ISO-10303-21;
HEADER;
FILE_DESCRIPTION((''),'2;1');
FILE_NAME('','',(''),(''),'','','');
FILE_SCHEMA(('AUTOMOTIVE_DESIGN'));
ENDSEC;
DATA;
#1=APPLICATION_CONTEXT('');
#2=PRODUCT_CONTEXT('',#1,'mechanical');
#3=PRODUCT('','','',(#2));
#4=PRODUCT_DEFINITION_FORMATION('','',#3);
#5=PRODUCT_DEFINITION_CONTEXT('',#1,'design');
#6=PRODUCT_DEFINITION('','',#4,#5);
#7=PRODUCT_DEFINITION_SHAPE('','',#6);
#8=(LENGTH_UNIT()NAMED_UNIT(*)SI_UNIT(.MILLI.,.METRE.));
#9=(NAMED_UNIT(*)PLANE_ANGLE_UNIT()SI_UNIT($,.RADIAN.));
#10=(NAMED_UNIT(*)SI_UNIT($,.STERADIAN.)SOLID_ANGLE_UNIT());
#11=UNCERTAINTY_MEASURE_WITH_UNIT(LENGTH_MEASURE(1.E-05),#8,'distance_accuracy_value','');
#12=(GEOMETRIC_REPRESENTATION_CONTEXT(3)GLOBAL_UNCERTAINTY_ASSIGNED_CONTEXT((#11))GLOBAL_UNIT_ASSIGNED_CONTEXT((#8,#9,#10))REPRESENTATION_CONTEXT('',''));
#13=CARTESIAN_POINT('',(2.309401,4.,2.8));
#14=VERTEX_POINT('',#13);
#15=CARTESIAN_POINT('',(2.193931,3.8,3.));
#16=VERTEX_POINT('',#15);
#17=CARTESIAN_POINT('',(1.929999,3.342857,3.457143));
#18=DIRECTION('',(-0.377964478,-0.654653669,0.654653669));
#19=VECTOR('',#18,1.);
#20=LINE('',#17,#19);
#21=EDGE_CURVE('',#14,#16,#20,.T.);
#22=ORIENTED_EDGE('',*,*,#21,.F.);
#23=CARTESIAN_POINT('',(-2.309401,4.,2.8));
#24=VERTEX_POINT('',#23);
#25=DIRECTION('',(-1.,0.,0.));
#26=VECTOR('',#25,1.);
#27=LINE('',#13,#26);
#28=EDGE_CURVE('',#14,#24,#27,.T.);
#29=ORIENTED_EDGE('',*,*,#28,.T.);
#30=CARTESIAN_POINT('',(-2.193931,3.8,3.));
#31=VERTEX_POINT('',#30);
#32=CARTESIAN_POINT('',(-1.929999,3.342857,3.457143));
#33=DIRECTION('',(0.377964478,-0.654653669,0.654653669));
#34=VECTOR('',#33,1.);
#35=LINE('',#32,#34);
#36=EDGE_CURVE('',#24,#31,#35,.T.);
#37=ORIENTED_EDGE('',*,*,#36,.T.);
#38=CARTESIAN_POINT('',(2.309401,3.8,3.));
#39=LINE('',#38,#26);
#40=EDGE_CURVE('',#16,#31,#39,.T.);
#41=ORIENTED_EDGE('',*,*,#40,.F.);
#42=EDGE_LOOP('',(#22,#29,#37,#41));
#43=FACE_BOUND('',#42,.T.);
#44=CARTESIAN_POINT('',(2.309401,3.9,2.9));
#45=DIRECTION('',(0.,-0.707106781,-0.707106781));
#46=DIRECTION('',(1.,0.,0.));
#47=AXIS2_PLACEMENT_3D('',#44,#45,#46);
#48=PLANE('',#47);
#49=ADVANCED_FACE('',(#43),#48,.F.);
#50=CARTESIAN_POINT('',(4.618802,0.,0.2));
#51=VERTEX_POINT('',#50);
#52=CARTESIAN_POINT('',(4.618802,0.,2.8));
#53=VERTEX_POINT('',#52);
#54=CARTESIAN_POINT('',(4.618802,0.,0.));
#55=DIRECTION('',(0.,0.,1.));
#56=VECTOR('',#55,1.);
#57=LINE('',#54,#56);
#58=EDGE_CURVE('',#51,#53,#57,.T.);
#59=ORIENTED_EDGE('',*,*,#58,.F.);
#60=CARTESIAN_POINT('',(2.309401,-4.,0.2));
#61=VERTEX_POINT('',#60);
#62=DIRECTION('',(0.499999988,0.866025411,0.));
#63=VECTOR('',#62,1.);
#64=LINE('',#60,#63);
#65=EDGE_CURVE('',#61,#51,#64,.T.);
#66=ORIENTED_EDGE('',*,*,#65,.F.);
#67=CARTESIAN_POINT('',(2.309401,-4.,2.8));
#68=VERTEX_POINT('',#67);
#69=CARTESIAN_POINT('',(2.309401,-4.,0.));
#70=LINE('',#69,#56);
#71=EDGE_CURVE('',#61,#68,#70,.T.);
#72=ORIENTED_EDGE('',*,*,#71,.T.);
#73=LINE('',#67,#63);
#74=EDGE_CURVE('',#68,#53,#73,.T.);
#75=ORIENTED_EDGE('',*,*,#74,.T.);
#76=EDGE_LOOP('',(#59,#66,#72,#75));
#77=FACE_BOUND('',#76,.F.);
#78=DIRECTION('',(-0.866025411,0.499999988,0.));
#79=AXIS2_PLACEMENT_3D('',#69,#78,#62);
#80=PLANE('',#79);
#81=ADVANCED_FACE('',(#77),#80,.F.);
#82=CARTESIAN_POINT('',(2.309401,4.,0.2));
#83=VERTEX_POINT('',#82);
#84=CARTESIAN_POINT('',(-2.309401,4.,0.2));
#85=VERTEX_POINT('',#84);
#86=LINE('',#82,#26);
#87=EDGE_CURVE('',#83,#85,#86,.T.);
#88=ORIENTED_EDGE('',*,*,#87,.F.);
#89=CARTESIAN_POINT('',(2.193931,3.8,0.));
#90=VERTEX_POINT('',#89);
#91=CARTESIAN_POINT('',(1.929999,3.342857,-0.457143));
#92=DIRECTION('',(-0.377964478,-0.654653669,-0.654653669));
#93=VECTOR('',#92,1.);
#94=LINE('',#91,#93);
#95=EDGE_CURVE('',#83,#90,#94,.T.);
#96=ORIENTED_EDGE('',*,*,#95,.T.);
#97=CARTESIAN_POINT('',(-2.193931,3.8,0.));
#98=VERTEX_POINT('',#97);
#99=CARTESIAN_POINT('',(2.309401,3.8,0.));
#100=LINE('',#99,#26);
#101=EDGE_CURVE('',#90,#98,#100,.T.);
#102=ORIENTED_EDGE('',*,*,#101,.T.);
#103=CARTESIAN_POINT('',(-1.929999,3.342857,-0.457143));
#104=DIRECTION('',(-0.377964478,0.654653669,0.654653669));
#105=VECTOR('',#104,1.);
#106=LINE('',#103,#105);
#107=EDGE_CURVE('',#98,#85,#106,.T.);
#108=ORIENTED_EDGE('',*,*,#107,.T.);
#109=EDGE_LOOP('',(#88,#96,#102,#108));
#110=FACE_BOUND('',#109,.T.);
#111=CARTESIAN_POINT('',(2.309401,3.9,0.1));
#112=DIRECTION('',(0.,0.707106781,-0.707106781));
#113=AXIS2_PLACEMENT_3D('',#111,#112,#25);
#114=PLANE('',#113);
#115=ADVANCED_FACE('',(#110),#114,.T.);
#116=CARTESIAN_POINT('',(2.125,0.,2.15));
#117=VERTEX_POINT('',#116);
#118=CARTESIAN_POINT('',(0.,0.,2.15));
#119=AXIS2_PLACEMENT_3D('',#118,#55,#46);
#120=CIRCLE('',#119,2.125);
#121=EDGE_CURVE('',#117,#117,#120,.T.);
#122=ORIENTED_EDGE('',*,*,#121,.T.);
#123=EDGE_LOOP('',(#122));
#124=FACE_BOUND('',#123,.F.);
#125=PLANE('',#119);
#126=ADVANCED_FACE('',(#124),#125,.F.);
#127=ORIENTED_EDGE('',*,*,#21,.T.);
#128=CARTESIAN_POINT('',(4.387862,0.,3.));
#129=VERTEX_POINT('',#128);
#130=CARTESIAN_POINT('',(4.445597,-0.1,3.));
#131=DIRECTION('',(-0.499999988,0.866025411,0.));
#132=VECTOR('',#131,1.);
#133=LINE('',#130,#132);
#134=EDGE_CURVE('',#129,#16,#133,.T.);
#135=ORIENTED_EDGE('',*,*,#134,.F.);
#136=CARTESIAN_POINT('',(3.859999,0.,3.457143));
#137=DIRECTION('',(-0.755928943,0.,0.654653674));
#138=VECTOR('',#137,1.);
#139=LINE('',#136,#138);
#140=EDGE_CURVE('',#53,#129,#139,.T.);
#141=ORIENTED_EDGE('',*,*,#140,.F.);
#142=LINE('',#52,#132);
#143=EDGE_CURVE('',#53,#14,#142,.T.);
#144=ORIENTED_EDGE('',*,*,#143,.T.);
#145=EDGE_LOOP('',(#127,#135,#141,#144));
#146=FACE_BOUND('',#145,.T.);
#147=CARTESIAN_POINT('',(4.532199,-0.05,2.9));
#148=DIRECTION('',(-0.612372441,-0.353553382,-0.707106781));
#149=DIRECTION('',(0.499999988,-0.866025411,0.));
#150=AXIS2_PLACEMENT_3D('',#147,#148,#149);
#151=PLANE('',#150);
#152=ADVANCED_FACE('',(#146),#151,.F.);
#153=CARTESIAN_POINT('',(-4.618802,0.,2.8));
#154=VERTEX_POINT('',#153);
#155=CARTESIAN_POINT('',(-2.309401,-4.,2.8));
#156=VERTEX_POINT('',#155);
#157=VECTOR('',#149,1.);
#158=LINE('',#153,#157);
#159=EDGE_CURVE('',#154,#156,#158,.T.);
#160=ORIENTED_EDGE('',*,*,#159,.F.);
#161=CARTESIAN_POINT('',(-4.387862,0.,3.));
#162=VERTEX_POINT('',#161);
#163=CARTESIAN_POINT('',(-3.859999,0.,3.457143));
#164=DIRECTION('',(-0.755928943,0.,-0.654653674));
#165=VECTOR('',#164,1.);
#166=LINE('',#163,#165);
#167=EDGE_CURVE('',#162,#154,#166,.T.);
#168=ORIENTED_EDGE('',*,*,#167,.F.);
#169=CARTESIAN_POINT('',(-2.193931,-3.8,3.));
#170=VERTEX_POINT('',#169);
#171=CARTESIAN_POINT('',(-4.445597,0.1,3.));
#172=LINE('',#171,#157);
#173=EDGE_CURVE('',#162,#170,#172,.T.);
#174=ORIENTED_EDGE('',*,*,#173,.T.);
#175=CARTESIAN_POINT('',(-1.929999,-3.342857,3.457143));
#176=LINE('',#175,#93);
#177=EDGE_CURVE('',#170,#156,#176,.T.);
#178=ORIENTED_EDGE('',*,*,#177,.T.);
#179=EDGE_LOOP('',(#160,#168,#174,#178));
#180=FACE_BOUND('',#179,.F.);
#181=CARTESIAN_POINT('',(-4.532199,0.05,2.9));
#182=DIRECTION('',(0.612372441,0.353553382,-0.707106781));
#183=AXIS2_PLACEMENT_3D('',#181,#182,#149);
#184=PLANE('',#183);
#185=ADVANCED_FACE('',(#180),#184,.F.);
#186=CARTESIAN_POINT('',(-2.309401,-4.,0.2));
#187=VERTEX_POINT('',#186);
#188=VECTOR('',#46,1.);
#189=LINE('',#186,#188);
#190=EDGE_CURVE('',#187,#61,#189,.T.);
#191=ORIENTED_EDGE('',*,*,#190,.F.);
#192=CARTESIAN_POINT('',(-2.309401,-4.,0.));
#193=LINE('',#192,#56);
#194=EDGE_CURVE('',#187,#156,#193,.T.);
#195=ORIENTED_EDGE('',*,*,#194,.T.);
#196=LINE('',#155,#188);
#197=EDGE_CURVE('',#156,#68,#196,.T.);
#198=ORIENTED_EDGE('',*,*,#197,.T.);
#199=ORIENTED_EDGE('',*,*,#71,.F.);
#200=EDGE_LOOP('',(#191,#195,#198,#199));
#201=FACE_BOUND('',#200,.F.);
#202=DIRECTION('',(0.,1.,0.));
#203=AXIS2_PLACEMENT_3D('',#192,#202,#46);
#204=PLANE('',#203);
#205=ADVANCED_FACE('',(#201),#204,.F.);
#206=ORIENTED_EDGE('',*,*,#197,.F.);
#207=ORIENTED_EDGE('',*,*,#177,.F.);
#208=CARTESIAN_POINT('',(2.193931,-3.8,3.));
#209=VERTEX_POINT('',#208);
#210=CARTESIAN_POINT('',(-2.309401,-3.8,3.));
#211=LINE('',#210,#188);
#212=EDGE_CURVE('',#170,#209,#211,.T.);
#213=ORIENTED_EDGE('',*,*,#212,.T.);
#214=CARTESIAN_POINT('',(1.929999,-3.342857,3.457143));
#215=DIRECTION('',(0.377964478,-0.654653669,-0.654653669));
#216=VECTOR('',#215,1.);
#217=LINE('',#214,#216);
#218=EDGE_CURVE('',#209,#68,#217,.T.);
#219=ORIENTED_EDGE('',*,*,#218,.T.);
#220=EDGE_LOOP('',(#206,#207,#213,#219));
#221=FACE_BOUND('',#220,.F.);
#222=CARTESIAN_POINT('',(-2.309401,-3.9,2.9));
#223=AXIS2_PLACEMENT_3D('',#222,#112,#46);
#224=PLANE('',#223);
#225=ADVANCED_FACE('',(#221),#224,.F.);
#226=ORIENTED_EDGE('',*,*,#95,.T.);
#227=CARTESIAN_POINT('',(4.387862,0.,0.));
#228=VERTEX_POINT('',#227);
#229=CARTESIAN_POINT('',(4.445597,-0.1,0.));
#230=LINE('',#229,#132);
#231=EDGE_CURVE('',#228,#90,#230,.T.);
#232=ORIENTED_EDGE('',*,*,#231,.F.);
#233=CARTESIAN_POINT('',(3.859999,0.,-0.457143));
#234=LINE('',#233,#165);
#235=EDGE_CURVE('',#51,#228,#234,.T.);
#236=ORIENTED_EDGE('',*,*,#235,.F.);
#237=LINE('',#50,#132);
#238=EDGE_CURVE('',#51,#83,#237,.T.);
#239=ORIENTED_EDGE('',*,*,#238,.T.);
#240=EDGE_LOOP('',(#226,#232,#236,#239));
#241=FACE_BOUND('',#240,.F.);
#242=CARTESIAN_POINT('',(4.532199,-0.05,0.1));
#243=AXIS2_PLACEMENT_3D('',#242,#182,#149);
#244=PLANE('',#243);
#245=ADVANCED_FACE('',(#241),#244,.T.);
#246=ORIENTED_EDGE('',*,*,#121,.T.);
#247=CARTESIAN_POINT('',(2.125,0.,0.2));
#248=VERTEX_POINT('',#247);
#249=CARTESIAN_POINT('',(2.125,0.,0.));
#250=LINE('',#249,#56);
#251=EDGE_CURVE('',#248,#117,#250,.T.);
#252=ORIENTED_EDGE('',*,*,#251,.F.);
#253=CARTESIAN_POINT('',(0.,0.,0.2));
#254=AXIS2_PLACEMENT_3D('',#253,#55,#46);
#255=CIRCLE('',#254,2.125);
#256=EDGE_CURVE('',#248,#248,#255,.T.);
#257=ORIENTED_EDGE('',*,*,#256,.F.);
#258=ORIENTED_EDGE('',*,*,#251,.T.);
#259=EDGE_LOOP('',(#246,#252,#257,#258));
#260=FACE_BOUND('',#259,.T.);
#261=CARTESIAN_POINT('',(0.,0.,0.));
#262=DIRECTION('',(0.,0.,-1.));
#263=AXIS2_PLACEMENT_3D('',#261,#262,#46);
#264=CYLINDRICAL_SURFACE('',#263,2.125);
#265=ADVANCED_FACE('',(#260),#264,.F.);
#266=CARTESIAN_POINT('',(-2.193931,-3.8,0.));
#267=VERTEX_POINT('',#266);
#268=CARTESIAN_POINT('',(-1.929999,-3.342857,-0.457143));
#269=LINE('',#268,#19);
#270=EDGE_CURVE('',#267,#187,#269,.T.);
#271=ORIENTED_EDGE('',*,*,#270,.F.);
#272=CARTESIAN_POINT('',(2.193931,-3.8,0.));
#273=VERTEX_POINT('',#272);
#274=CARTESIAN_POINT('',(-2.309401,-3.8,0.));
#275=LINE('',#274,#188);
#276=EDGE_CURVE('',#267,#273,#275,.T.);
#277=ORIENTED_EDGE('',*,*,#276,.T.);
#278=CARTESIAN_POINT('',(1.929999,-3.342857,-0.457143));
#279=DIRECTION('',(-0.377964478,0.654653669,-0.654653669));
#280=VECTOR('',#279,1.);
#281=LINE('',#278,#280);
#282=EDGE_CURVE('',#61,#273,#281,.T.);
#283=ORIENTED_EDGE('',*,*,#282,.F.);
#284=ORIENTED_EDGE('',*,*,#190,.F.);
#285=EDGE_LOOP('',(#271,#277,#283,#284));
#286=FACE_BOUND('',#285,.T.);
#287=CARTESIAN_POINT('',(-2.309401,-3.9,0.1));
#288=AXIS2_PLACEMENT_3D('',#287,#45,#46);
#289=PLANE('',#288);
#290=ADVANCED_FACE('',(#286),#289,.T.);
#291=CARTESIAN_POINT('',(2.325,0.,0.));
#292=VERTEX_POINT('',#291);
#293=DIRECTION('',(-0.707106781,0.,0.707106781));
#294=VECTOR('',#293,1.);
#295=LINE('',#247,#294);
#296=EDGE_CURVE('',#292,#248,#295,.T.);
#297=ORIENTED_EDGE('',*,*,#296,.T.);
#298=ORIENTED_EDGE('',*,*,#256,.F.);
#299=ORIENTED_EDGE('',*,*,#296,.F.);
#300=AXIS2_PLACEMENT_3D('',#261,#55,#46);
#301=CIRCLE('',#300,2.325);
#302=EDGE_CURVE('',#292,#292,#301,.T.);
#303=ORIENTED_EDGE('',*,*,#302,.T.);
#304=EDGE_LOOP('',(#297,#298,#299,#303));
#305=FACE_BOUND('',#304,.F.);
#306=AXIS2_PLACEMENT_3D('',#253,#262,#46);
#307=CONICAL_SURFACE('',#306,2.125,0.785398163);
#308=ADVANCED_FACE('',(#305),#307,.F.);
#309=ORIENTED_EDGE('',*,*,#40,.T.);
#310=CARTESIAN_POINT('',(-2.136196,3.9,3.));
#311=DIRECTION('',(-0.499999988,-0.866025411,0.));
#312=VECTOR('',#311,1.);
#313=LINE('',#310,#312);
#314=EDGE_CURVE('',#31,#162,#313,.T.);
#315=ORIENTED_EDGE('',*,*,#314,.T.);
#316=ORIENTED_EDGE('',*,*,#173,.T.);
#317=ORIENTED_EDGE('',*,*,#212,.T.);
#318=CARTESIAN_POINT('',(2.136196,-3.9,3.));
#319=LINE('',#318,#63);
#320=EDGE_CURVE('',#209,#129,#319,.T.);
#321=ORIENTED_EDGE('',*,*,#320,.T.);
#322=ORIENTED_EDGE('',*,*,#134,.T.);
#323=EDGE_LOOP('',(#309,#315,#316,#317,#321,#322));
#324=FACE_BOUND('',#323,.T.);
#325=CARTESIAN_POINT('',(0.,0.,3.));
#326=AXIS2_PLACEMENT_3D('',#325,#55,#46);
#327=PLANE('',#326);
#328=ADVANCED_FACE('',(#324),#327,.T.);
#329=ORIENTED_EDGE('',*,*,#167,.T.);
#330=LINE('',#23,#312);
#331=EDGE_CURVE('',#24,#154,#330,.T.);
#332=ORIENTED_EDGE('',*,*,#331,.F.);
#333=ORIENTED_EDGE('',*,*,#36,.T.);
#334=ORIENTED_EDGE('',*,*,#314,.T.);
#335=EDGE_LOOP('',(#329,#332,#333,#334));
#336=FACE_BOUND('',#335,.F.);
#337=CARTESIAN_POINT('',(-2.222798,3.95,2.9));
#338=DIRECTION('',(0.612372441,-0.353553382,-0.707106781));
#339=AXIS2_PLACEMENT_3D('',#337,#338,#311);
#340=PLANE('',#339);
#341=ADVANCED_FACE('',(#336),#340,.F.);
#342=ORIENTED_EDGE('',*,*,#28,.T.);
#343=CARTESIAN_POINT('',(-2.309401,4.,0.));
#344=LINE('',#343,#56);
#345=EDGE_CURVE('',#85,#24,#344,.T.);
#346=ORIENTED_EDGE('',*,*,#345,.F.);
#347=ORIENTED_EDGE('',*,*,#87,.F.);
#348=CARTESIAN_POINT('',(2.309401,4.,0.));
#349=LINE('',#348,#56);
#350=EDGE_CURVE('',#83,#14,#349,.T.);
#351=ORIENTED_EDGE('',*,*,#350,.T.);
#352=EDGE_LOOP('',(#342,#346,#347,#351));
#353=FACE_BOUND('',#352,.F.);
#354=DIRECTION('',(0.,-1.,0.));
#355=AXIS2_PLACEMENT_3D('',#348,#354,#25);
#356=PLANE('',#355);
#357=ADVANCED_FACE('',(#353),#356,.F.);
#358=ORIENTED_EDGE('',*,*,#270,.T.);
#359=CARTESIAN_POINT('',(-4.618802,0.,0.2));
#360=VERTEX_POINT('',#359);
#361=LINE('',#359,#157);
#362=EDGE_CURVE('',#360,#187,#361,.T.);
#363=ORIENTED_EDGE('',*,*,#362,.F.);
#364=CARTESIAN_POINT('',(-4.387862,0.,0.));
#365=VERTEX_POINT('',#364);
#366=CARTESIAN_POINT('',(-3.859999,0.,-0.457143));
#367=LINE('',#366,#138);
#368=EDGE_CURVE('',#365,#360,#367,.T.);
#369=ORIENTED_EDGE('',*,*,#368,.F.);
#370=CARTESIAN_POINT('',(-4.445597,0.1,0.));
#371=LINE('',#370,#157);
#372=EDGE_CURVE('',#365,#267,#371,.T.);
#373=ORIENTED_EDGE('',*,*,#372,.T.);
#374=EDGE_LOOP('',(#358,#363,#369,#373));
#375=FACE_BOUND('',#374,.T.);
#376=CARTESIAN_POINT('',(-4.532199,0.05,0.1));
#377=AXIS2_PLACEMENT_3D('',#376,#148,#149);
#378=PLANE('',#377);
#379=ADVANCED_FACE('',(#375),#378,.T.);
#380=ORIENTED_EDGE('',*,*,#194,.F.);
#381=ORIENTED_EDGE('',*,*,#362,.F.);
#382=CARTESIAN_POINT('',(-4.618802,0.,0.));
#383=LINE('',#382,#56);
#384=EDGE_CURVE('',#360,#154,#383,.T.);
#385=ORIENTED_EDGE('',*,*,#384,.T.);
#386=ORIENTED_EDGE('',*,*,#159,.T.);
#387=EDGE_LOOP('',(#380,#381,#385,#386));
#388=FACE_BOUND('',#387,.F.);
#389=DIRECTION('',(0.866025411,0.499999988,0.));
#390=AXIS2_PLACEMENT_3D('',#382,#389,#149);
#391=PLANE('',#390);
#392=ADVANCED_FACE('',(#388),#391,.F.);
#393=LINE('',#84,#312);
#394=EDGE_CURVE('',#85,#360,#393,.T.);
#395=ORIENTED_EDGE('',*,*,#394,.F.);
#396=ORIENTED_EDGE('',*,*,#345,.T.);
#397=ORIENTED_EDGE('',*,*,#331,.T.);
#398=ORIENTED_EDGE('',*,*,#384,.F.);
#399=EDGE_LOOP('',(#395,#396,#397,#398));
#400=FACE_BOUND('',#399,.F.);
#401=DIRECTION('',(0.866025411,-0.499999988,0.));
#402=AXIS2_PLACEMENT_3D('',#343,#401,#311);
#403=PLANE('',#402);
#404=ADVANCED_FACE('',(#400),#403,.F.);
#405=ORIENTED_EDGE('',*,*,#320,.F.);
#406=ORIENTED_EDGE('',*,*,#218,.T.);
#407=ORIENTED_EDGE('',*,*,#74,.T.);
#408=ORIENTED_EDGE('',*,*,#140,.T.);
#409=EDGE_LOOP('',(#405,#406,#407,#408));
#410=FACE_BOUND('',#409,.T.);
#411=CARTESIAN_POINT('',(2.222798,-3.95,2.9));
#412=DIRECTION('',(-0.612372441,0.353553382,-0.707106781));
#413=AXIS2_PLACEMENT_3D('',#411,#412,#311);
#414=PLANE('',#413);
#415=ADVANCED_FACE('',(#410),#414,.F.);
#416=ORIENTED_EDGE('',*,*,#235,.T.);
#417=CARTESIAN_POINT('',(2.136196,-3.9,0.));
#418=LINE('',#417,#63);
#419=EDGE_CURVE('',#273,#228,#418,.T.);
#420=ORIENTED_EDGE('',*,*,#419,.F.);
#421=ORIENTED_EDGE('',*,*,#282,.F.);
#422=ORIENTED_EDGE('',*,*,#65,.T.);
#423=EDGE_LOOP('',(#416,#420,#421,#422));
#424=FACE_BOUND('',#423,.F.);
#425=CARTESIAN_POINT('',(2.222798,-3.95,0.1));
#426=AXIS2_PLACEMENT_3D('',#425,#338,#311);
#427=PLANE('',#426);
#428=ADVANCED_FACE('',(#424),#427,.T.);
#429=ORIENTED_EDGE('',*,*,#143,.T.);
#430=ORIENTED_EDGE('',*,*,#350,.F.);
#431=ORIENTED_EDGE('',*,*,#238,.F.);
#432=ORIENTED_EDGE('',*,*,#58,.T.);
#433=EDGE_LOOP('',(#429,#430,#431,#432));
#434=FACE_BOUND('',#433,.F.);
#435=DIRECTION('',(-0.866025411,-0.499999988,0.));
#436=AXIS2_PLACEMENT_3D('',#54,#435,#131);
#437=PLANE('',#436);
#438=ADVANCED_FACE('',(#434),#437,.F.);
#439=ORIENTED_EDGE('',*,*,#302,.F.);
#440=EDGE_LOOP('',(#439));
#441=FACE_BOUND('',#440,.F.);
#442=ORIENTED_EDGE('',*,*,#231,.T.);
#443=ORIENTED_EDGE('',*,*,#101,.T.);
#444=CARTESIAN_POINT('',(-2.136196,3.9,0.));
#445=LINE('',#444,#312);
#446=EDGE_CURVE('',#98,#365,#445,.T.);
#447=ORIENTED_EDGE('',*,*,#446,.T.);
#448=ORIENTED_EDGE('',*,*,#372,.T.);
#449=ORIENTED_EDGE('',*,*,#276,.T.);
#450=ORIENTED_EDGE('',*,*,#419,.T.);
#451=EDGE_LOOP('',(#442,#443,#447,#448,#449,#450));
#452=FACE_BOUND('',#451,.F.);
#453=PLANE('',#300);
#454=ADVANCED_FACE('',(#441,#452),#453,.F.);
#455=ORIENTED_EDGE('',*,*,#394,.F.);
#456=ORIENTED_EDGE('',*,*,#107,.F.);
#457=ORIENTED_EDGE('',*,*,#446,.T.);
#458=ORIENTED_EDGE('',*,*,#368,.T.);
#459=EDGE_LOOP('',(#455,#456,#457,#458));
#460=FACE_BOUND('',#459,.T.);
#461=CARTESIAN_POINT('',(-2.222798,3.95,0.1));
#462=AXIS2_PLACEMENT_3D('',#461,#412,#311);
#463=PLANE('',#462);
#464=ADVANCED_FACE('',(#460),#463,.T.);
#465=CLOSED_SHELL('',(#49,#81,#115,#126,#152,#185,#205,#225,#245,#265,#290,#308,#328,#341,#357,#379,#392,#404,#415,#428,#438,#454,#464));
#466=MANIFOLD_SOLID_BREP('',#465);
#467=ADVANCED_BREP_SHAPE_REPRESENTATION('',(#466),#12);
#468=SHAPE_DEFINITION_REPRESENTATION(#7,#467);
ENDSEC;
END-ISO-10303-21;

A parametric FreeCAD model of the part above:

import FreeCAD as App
import Part
import Sketcher

V = App.Vector
Q = App.Units.Quantity


def edges_at(feature, points):
    """Names of the edges that pass closest to the given points."""
    edges = feature.Shape.Edges
    near = lambda p: min(range(len(edges)), key=lambda i: edges[i].distToShape(Part.Vertex(*p))[0])
    return sorted({f"Edge{near(p) + 1}" for p in points})

doc = App.newDocument("Part")
params = doc.addObject("Spreadsheet::Sheet", "Params")
for row, (alias, value) in enumerate([
    ("pad1_length", "3 mm"),
    ("sketch2_diameter", "4.25 mm"),
    ("pocket1_length", "2.15 mm"),
    ("chamfer_size", "0.2 mm"),
    ("chamfer2_size", "0.2 mm"),
], start=1):
    params.set(f"A{row}", alias)
    params.set(f"B{row}", "=" + value)
    params.setAlias(f"B{row}", alias)

body = doc.addObject("PartDesign::Body", "Body")

sketch1 = body.newObject("Sketcher::SketchObject", "Sketch")
sketch1.AttachmentSupport = (doc.getObject("XY_Plane"), [""])
sketch1.MapMode = "FlatFace"
sketch1.addGeometry(Part.LineSegment(V(4.6, 0, 0), V(2.3, 4, 0)), False)
sketch1.addGeometry(Part.LineSegment(V(2.3, 4, 0), V(-2.3, 4, 0)), False)
sketch1.addGeometry(Part.LineSegment(V(-2.3, 4, 0), V(-4.6, 0, 0)), False)
sketch1.addGeometry(Part.LineSegment(V(-4.6, 0, 0), V(-2.3, -4, 0)), False)
sketch1.addGeometry(Part.LineSegment(V(-2.3, -4, 0), V(2.3, -4, 0)), False)
sketch1.addGeometry(Part.LineSegment(V(2.3, -4, 0), V(4.6, 0, 0)), False)
sketch1.addConstraint(Sketcher.Constraint("Coincident", 0, 2, 1, 1))
sketch1.addConstraint(Sketcher.Constraint("Coincident", 1, 2, 2, 1))
sketch1.addConstraint(Sketcher.Constraint("Coincident", 2, 2, 3, 1))
sketch1.addConstraint(Sketcher.Constraint("Coincident", 3, 2, 4, 1))
sketch1.addConstraint(Sketcher.Constraint("Coincident", 4, 2, 5, 1))
sketch1.addConstraint(Sketcher.Constraint("Coincident", 5, 2, 0, 1))
sketch1.addConstraint(Sketcher.Constraint("Horizontal", 1))
sketch1.addConstraint(Sketcher.Constraint("Horizontal", 4))
sketch1.addConstraint(Sketcher.Constraint("Symmetric", 0, 2, 3, 2, -1, 1))
sketch1.addConstraint(Sketcher.Constraint("Symmetric", 2, 2, 5, 2, -1, 1))
sketch1.addConstraint(Sketcher.Constraint("PointOnObject", 2, 2, -1))
sketch1.addConstraint(Sketcher.Constraint("Parallel", 2, 5))
sketch1.addConstraint(Sketcher.Constraint("Vertical", 1, 2, 3, 2))
sketch1.addConstraint(Sketcher.Constraint("Angle", 0, Q("119.999999 deg")))
sketch1.addConstraint(Sketcher.Constraint("DistanceY", -1, 1, 0, 2, Q("4 mm")))
sketch1.addConstraint(Sketcher.Constraint("DistanceX", 1, 2, 1, 1, Q("4.618802 mm")))
pad1 = body.newObject("PartDesign::Pad", "Pad")
pad1.Profile = sketch1
pad1.setExpression("Length", "Params.pad1_length")

sketch2 = body.newObject("Sketcher::SketchObject", "Sketch001")
sketch2.AttachmentSupport = (doc.getObject("XY_Plane"), [""])
sketch2.MapMode = "FlatFace"
sketch2.addGeometry(Part.Circle(V(0, 0, 0), V(0, 0, 1), 2.1), False)
sketch2.addConstraint(Sketcher.Constraint("Coincident", 0, 3, -1, 1))
sketch2.addConstraint(Sketcher.Constraint("Diameter", 0, Q("4.25 mm")))
sketch2.setExpression("Constraints[1]", "Params.sketch2_diameter")
pocket1 = body.newObject("PartDesign::Pocket", "Pocket")
pocket1.Profile = sketch2
pocket1.setExpression("Length", "Params.pocket1_length")
pocket1.Reversed = True
doc.recompute()

chamfer = body.newObject("PartDesign::Chamfer", "Chamfer")
chamfer.Base = (pocket1, edges_at(pocket1, [
    (3.464, 2, 3),
    (0, 4, 3),
    (-3.464, 2, 3),
    (-3.464, -2, 3),
    (0, -4, 3),
    (3.464, -2, 3),
]))
chamfer.setExpression("Size", "Params.chamfer_size")
doc.recompute()

chamfer2 = body.newObject("PartDesign::Chamfer", "Chamfer001")
chamfer2.Base = (chamfer, edges_at(chamfer, [
    (3.464, 2, 0),
    (3.464, -2, 0),
    (0, 4, 0),
    (0, -4, 0),
    (-3.464, 2, 0),
    (-3.464, -2, 0),
    (-2.125, 0, 0),
]))
chamfer2.setExpression("Size", "Params.chamfer2_size")

doc.recompute()
